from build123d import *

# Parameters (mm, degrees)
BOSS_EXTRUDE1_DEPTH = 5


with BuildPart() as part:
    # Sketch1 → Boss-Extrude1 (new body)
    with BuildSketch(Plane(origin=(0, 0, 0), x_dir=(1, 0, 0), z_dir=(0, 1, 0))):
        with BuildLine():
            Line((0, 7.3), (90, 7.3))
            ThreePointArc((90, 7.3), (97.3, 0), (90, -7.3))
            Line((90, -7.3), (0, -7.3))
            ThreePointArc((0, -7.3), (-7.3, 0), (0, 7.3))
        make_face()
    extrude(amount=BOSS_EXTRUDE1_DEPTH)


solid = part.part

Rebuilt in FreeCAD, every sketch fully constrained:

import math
import FreeCAD as App
import Part
import Sketcher
from FreeCAD import Vector

doc = App.newDocument("Part")
params = doc.addObject("Spreadsheet::Sheet", "Params")
for row, (alias, value) in enumerate([
    ("sketch1_radius", "7.3 mm"),
    ("sketch1_width", "90 mm"),
    ("pad1_length", "5 mm"),
], start=1):
    params.set(f"A{row}", alias)
    params.set(f"B{row}", "=" + value)
    params.setAlias(f"B{row}", alias)

body = doc.addObject("PartDesign::Body", "Body")

sketch1 = body.newObject("Sketcher::SketchObject", "Sketch")
sketch1.AttachmentSupport = (doc.getObject("XZ_Plane"), [""])
sketch1.MapMode = "FlatFace"
sketch1.addGeometry([
    Part.LineSegment(Vector(90, -7.3, 0), Vector(0, -7.3, 0)),
    Part.ArcOfCircle(Part.Circle(Vector(0, 0, 0), Vector(0, 0, 1), 7.3), math.radians(90), math.radians(270)),
    Part.LineSegment(Vector(0, 7.3, 0), Vector(90, 7.3, 0)),
    Part.ArcOfCircle(Part.Circle(Vector(90, 0, 0), Vector(0, 0, 1), 7.3), math.radians(-90), math.radians(90)),
], False)
sketch1.addConstraint([
    Sketcher.Constraint("Tangent", 0, 2, 1, 2),
    Sketcher.Constraint("Tangent", 1, 1, 2, 1),
    Sketcher.Constraint("Tangent", 2, 2, 3, 2),
    Sketcher.Constraint("Tangent", 3, 1, 0, 1),
    Sketcher.Constraint("Horizontal", 0),
    Sketcher.Constraint("Horizontal", 2),
    Sketcher.Constraint("Coincident", 1, 3, -1, 1),
    Sketcher.Constraint("Radius", 1, 7.3),
    Sketcher.Constraint("DistanceX", 0, 2, 0, 1, 90.0),
])
sketch1.setExpression("Constraints[7]", "Params.sketch1_radius")
sketch1.setExpression("Constraints[8]", "Params.sketch1_width")
pad1 = body.newObject("PartDesign::Pad", "Pad")
pad1.Profile = sketch1
pad1.setExpression("Length", "Params.pad1_length")
pad1.Reversed = True

doc.recompute()
